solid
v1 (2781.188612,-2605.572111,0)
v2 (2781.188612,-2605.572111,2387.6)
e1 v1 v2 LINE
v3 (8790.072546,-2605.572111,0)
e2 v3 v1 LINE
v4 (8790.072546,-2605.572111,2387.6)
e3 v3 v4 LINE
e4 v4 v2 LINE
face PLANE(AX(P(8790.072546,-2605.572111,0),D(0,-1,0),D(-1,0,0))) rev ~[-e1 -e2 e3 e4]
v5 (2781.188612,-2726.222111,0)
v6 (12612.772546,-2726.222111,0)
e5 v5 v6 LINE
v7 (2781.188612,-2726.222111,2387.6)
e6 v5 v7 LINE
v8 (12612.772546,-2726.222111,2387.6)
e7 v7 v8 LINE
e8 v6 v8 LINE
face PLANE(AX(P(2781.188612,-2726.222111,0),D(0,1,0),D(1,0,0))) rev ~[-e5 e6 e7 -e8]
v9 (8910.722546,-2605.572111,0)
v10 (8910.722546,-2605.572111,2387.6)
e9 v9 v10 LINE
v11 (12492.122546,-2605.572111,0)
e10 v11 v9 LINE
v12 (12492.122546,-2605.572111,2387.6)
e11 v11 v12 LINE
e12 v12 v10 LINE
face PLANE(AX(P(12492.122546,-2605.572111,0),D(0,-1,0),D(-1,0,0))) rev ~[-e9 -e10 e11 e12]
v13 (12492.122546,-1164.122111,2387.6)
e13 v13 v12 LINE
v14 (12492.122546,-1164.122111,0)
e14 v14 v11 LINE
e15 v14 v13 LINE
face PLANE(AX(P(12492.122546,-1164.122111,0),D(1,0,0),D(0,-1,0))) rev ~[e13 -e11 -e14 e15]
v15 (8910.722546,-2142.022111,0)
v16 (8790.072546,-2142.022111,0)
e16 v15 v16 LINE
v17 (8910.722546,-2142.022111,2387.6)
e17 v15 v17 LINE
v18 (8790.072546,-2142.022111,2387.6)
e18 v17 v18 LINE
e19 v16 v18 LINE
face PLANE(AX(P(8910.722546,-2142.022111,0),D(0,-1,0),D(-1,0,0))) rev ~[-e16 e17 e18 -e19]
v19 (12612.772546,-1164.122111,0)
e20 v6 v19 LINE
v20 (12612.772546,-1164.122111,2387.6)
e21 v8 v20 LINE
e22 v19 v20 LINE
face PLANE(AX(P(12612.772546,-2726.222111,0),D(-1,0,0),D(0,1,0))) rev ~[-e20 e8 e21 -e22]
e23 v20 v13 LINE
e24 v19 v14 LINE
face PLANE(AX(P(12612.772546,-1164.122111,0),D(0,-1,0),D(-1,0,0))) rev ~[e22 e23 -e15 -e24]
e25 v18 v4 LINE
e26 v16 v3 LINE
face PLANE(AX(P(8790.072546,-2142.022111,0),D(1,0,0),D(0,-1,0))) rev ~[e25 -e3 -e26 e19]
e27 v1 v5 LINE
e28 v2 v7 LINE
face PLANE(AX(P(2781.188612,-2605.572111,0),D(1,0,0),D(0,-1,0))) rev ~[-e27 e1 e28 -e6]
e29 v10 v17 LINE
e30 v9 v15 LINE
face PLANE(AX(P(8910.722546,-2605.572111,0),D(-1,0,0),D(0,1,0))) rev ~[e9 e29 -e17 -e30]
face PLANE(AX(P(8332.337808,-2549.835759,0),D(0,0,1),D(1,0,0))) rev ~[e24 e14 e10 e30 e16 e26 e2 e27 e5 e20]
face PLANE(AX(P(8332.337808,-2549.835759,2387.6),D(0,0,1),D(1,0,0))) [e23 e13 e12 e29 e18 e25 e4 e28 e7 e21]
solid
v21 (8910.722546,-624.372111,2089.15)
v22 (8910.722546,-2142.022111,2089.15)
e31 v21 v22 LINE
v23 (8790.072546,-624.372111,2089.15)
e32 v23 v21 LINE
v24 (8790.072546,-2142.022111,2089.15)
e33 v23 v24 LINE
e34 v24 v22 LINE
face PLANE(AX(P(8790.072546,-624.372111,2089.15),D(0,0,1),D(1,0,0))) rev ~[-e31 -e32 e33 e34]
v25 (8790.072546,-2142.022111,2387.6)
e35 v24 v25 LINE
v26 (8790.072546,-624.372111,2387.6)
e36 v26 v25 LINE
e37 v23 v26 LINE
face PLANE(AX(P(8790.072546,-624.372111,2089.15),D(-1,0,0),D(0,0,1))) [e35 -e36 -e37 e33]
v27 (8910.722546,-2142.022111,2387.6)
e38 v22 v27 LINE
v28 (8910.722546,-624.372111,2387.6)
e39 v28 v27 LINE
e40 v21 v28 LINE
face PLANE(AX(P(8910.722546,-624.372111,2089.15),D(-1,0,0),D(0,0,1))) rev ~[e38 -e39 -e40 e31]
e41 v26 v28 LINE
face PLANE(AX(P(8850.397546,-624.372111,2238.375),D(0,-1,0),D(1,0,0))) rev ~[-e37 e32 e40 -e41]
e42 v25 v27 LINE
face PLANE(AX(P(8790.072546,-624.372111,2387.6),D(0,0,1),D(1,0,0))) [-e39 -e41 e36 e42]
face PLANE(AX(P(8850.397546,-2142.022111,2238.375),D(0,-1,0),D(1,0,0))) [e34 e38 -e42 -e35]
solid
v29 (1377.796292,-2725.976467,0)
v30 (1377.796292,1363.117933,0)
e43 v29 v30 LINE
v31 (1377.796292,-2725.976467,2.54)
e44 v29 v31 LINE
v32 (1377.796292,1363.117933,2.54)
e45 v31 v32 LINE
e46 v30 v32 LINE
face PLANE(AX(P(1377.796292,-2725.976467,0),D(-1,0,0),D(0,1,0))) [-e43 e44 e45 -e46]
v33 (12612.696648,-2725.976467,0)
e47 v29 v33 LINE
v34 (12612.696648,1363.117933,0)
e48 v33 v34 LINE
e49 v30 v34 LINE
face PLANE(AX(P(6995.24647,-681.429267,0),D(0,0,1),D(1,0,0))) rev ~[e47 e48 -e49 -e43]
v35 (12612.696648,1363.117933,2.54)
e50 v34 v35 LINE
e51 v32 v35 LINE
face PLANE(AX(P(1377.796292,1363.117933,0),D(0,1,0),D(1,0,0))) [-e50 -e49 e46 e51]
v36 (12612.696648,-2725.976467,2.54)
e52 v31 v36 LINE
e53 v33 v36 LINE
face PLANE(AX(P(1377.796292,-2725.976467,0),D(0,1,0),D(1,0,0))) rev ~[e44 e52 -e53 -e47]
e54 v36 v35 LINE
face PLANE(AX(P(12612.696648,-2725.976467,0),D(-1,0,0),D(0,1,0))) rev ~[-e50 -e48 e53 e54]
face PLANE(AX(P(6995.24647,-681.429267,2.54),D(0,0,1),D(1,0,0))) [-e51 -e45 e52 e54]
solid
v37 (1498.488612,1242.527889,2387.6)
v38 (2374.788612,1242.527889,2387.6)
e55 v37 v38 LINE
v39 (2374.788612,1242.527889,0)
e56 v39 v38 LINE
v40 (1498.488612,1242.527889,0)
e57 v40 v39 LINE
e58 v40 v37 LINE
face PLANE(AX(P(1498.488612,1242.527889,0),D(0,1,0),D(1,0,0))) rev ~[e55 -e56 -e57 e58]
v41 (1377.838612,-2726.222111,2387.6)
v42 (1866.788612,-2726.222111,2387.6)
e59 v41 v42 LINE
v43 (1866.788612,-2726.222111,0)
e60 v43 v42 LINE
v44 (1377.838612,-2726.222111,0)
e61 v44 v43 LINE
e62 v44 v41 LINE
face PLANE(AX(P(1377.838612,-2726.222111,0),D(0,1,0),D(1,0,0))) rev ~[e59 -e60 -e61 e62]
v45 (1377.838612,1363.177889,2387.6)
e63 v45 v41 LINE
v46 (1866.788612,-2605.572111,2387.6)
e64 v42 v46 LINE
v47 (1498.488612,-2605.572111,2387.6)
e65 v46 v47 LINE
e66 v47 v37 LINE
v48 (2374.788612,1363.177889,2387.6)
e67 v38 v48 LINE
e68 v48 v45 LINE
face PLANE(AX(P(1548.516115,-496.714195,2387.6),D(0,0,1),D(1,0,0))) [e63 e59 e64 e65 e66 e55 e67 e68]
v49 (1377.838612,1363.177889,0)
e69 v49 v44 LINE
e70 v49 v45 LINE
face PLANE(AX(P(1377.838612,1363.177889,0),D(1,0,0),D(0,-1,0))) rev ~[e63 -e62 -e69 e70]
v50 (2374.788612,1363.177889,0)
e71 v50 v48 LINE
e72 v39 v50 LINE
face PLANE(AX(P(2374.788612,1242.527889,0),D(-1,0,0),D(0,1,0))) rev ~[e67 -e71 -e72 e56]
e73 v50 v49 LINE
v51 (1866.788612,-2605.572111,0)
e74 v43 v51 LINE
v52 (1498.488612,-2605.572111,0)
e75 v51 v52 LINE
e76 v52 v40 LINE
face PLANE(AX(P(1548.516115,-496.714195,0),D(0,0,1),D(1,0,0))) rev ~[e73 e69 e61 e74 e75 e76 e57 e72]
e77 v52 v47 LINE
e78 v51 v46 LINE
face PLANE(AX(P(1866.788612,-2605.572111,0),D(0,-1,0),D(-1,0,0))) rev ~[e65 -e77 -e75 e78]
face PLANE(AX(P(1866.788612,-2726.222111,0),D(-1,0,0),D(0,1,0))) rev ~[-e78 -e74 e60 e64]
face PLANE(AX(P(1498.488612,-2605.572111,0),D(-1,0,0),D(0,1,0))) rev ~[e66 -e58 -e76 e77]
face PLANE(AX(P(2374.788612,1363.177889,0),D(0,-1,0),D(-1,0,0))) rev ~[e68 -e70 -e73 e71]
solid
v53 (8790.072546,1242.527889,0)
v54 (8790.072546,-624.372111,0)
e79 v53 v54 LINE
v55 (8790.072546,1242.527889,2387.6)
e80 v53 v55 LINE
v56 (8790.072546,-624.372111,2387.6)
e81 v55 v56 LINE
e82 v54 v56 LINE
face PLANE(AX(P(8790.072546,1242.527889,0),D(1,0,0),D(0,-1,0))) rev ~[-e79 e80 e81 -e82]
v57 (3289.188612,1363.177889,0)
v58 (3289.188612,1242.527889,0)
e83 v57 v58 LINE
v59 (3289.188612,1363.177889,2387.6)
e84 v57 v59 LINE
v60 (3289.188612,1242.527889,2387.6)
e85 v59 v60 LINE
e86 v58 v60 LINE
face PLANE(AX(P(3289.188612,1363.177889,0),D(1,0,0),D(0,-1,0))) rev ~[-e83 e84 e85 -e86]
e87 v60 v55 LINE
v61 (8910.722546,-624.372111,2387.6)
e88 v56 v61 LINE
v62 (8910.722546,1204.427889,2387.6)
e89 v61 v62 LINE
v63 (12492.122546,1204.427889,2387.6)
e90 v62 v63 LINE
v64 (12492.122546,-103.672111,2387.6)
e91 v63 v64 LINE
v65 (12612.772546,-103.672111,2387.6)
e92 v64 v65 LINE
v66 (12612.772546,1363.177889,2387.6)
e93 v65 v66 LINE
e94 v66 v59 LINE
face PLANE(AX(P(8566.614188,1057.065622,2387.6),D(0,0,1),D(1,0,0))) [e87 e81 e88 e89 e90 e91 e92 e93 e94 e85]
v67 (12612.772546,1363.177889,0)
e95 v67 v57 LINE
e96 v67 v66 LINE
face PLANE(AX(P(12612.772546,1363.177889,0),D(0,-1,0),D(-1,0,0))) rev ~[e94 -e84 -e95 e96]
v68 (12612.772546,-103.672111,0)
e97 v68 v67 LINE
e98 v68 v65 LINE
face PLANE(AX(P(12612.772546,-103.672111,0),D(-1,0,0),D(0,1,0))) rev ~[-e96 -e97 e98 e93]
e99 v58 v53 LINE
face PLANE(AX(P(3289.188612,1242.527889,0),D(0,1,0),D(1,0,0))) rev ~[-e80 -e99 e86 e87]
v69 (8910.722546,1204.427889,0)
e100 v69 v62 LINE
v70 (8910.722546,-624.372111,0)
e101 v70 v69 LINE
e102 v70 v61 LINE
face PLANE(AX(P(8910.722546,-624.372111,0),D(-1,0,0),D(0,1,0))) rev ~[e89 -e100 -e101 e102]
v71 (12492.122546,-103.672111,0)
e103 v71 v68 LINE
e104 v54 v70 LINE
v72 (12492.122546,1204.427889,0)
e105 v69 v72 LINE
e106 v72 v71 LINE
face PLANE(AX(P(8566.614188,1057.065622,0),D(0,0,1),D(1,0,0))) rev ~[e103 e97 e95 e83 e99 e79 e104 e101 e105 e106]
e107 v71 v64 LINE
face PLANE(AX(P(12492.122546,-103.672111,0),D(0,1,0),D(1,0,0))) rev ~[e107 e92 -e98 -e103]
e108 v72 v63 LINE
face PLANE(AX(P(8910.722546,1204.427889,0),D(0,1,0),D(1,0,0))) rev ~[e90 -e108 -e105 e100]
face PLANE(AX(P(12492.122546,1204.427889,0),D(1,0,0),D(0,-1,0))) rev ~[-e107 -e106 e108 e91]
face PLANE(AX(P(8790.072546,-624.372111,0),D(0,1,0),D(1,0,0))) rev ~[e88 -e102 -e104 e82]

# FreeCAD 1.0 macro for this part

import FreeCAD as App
import Part
import Sketcher
Q = App.Units.Quantity


def add_polygon(sketch, points):
    """Adds a closed chain of lines whose ends are joined by coincident constraints."""
    first, n = sketch.GeometryCount, len(points)
    for a, b in zip(points, points[1:] + points[:1]):
        sketch.addGeometry(Part.LineSegment(App.Vector(*a, 0), App.Vector(*b, 0)), False)
    for i in range(n):
        sketch.addConstraint(Sketcher.Constraint("Coincident", first + i, 2, first + (i + 1) % n, 1))

doc = App.newDocument("Part")
body = doc.addObject("PartDesign::Body", "Body")
body.AllowCompound = True

sketch1 = body.newObject("Sketcher::SketchObject", "Sketch")
sketch1.AttachmentSupport = (doc.getObject("XY_Plane"), [""])
sketch1.MapMode = "FlatFace"
add_polygon(sketch1, [(1498.488612, -2605.572111), (1498.488612, 1242.527889), (2374.788612, 1242.527889), (2374.788612, 1363.177889), (1377.838612, 1363.177889), (1377.838612, -2726.222111), (1866.788612, -2726.222111), (1866.788612, -2605.572111)])
add_polygon(sketch1, [(12492.122546, -1164.122111), (12492.122546, -2605.572111), (8910.722546, -2605.572111), (8910.722546, -2142.022111), (8790.072546, -2142.022111), (8790.072546, -2605.572111), (2781.188612, -2605.572111), (2781.188612, -2726.222111), (12612.772546, -2726.222111), (12612.772546, -1164.122111)])
add_polygon(sketch1, [(3289.188612, 1242.527889), (8790.072546, 1242.527889), (8790.072546, -624.372111), (8910.722546, -624.372111), (8910.722546, 1204.427889), (12492.122546, 1204.427889), (12492.122546, -103.672111), (12612.772546, -103.672111), (12612.772546, 1363.177889), (3289.188612, 1363.177889)])
sketch1.addConstraint([
    Sketcher.Constraint("Vertical", 0),
    Sketcher.Constraint("Horizontal", 1),
    Sketcher.Constraint("Vertical", 2),
    Sketcher.Constraint("Horizontal", 3),
    Sketcher.Constraint("Vertical", 4),
    Sketcher.Constraint("Horizontal", 5),
    Sketcher.Constraint("Vertical", 6),
    Sketcher.Constraint("Horizontal", 7),
    Sketcher.Constraint("Vertical", 8),
    Sketcher.Constraint("Horizontal", 9),
    Sketcher.Constraint("Vertical", 10),
    Sketcher.Constraint("Horizontal", 11),
    Sketcher.Constraint("Vertical", 12),
    Sketcher.Constraint("Horizontal", 13),
    Sketcher.Constraint("Vertical", 14),
    Sketcher.Constraint("Horizontal", 15),
    Sketcher.Constraint("Vertical", 16),
    Sketcher.Constraint("Horizontal", 17),
    Sketcher.Constraint("Horizontal", 18),
    Sketcher.Constraint("Vertical", 19),
    Sketcher.Constraint("Horizontal", 20),
    Sketcher.Constraint("Vertical", 21),
    Sketcher.Constraint("Horizontal", 22),
    Sketcher.Constraint("Vertical", 23),
    Sketcher.Constraint("Horizontal", 24),
    Sketcher.Constraint("Vertical", 25),
    Sketcher.Constraint("Horizontal", 26),
    Sketcher.Constraint("Vertical", 27),
    Sketcher.Constraint("Horizontal", 7, 2, 8, 2),
    Sketcher.Constraint("Horizontal", 9, 2, 12, 2),
    Sketcher.Constraint("Horizontal", 5, 2, 14, 2),
    Sketcher.Constraint("Horizontal", 1, 2, 18, 2),
    Sketcher.Constraint("Horizontal", 3, 2, 25, 2),
    Sketcher.Constraint("Vertical", 12, 2, 18, 2),
    Sketcher.Constraint("Vertical", 10, 2, 20, 2),
    Sketcher.Constraint("Vertical", 17, 2, 22, 2),
    Sketcher.Constraint("Vertical", 16, 2, 24, 2),
    Sketcher.Constraint("Equal", 11, 17),
    Sketcher.Constraint("Equal", 24, 2),
    Sketcher.Constraint("Equal", 2, 6),
    Sketcher.Constraint("DistanceX", 9, 2, 9, 1, Q("141 in")),
    Sketcher.Constraint("DistanceY", 4, 2, 4, 1, Q("161 in")),
    Sketcher.Constraint("DistanceY", 21, 1, 21, 2, Q("72 in")),
    Sketcher.Constraint("DistanceX", 1, 1, 1, 2, Q("34.5 in")),
    Sketcher.Constraint("DistanceX", 7, 2, 7, 1, Q("14.5 in")),
    Sketcher.Constraint("DistanceY", 0, 1, 0, 2, Q("151.5 in")),
    Sketcher.Constraint("DistanceY", 16, 1, 16, 2, Q("61.5 in")),
    Sketcher.Constraint("DistanceY", 19, 2, 19, 1, Q("73.5 in")),
    Sketcher.Constraint("DistanceY", 23, 2, 23, 1, Q("51.5 in")),
    Sketcher.Constraint("DistanceY", 5, 2, 10, 2, Q("23 in")),
    Sketcher.Constraint("DistanceX", 6, 2, 13, 2, Q("36 in")),
    Sketcher.Constraint("DistanceX", 2, 2, 26, 2, Q("36 in")),
    Sketcher.Constraint("DistanceX", 3, 2, 3, 1, Q("39.25 in")),
    Sketcher.Constraint("DistanceX", 13, 2, 13, 1, 6008.883934),
    Sketcher.Constraint("DistanceX", -1, 1, 0, 2, 1498.488612),
    Sketcher.Constraint("DistanceY", -1, 1, 0, 2, 1242.527889),
])
pad1 = body.newObject("PartDesign::Pad", "Pad")
pad1.Profile = sketch1
pad1.Length = Q("94 in")
body2 = doc.addObject("PartDesign::Body", "Body001")

sketch2 = body2.newObject("Sketcher::SketchObject", "Sketch001")
sketch2.AttachmentSupport = (doc.getObject("XY_Plane001"), [""])
sketch2.MapMode = "FlatFace"
add_polygon(sketch2, [(1377.796292, 1363.117933), (1377.796292, -2725.976467), (12612.696648, -2725.976467), (12612.696648, 1363.117933)])
sketch2.addConstraint([
    Sketcher.Constraint("Vertical", 0),
    Sketcher.Constraint("Horizontal", 1),
    Sketcher.Constraint("Vertical", 2),
    Sketcher.Constraint("Horizontal", 3),
    Sketcher.Constraint("DistanceY", 0, 2, 0, 1, 4089.0944),
    Sketcher.Constraint("DistanceX", 1, 1, 1, 2, 11234.900356),
    Sketcher.Constraint("DistanceX", -1, 1, 0, 2, 1377.796292),
    Sketcher.Constraint("DistanceY", 0, 2, -1, 1, 2725.976467),
])
pad2 = body2.newObject("PartDesign::Pad", "Pad001")
pad2.Profile = sketch2
pad2.Length = Q("0.1 in")
body3 = doc.addObject("PartDesign::Body", "Body002")

sketch3 = body3.newObject("Sketcher::SketchObject", "Sketch002")
sketch3.AttachmentSupport = (doc.getObject("XZ_Plane002"), [""])
sketch3.MapMode = "FlatFace"
sketch3.AttachmentOffset = App.Placement(App.Vector(0, 0, 624.372111), App.Rotation())
add_polygon(sketch3, [(8790.072546, 2387.6), (8790.072546, 2089.15), (8910.722546, 2089.15), (8910.722546, 2387.6)])
sketch3.addConstraint([
    Sketcher.Constraint("Vertical", 0),
    Sketcher.Constraint("Horizontal", 1),
    Sketcher.Constraint("Vertical", 2),
    Sketcher.Constraint("Horizontal", 3),
    Sketcher.Constraint("DistanceY", -1, 1, 2, 2, Q("94 in")),
    Sketcher.Constraint("DistanceX", 1, 1, 1, 2, Q("4.75 in")),
    Sketcher.Constraint("DistanceY", 0, 2, 0, 1, Q("11.75 in")),
    Sketcher.Constraint("DistanceX", -1, 1, 0, 2, 8790.072546),
])
pad3 = body3.newObject("PartDesign::Pad", "Pad002")
pad3.Profile = sketch3
pad3.Length = Q("59.75 in")

doc.recompute()
